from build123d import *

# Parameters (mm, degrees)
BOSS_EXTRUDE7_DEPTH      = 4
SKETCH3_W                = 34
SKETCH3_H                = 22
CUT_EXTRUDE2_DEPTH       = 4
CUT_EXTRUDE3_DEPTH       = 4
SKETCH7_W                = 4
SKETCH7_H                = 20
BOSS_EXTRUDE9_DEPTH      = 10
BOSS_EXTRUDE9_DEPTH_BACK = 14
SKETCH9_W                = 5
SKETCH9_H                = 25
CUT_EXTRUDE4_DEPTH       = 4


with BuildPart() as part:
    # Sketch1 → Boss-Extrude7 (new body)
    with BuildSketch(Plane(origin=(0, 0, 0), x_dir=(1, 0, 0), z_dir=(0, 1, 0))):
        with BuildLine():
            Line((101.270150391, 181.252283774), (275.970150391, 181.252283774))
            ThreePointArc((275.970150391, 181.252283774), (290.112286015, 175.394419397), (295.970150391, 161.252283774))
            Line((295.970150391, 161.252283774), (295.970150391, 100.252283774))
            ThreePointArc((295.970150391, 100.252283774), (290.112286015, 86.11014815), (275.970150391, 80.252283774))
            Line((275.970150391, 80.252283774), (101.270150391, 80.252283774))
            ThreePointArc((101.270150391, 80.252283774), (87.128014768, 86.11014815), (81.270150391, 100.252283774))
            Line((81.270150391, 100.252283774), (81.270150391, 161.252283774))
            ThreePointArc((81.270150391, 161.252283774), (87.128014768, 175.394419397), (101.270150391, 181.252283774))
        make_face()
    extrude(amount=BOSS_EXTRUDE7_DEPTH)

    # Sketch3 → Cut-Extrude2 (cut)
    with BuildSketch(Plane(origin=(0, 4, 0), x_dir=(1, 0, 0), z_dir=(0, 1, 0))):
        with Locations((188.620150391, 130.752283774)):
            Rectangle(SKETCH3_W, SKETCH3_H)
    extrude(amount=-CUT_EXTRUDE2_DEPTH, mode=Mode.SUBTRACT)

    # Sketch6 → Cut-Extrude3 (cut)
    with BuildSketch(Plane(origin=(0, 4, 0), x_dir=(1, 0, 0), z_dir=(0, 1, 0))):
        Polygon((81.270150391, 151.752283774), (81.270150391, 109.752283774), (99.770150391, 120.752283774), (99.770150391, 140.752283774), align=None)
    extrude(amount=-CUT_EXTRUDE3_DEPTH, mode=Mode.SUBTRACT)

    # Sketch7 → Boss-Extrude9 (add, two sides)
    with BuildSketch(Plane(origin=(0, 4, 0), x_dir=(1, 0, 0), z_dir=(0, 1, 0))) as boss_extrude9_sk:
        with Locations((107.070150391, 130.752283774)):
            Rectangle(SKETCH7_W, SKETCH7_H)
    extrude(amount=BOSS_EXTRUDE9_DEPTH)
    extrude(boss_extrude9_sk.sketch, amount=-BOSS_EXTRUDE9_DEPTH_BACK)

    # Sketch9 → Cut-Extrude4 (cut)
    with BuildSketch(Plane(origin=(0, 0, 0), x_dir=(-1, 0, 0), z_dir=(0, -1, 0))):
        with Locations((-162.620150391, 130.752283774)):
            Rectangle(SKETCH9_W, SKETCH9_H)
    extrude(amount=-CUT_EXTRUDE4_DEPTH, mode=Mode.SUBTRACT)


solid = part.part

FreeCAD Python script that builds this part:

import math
import FreeCAD as App
import Part
import Sketcher
from FreeCAD import Vector


def add_polygon(sketch, points):
    """Adds a closed chain of lines whose ends are joined by coincident constraints."""
    first, n = sketch.GeometryCount, len(points)
    for a, b in zip(points, points[1:] + points[:1]):
        sketch.addGeometry(Part.LineSegment(App.Vector(*a, 0), App.Vector(*b, 0)), False)
    for i in range(n):
        sketch.addConstraint(Sketcher.Constraint("Coincident", first + i, 2, first + (i + 1) % n, 1))

doc = App.newDocument("Part")
body = doc.addObject("PartDesign::Body", "Body")

# Sketch on XZ plane
sketch1 = doc.addObject("Sketcher::SketchObject", "Sketch")
body.addObject(sketch1)
sketch1.AttachmentSupport = (doc.XZ_Plane, [""])
sketch1.MapMode = "FlatFace"
sketch1.addGeometry([
    Part.LineSegment(Vector(275.97015, -181.252284, 0), Vector(101.27015, -181.252284, 0)),  # 0
    Part.ArcOfCircle(Part.Circle(Vector(101.27015, -161.252284, 0), Vector(0, 0, 1), 20), math.radians(-180), math.radians(-90)),  # 1
    Part.LineSegment(Vector(81.27015, -161.252284, 0), Vector(81.27015, -100.252284, 0)),  # 2
    Part.ArcOfCircle(Part.Circle(Vector(101.27015, -100.252284, 0), Vector(0, 0, 1), 20), math.radians(90), math.radians(180)),  # 3
    Part.LineSegment(Vector(101.27015, -80.252284, 0), Vector(275.97015, -80.252284, 0)),  # 4
    Part.ArcOfCircle(Part.Circle(Vector(275.97015, -100.252284, 0), Vector(0, 0, 1), 20), math.radians(0), math.radians(90)),  # 5
    Part.LineSegment(Vector(295.97015, -100.252284, 0), Vector(295.97015, -161.252284, 0)),  # 6
    Part.ArcOfCircle(Part.Circle(Vector(275.97015, -161.252284, 0), Vector(0, 0, 1), 20), math.radians(-90), math.radians(0)),  # 7
], False)
sketch1.addConstraint([
    Sketcher.Constraint("Tangent", 0, 2, 1, 2),
    Sketcher.Constraint("Tangent", 1, 1, 2, 1),
    Sketcher.Constraint("Tangent", 2, 2, 3, 2),
    Sketcher.Constraint("Tangent", 3, 1, 4, 1),
    Sketcher.Constraint("Tangent", 4, 2, 5, 2),
    Sketcher.Constraint("Tangent", 5, 1, 6, 1),
    Sketcher.Constraint("Tangent", 6, 2, 7, 2),
    Sketcher.Constraint("Tangent", 7, 1, 0, 1),
    Sketcher.Constraint("Horizontal", 0),
    Sketcher.Constraint("Vertical", 2),
    Sketcher.Constraint("Horizontal", 4),
    Sketcher.Constraint("Vertical", 6),
    Sketcher.Constraint("Equal", 1, 3),
    Sketcher.Constraint("Equal", 3, 5),
    Sketcher.Constraint("Equal", 5, 7),
    Sketcher.Constraint("Radius", 1, 20.0),
    Sketcher.Constraint("DistanceY", 2, 1, 2, 2, 61.0),
    Sketcher.Constraint("DistanceX", 0, 2, 0, 1, 174.7),
    Sketcher.Constraint("DistanceX", -1, 1, 1, 3, 101.27015),
    Sketcher.Constraint("DistanceY", 1, 3, -1, 1, 161.252284),
])
pad1 = doc.addObject("PartDesign::Pad", "Pad")
body.addObject(pad1)
pad1.Profile = sketch1
pad1.Length = 4
pad1.Reversed = True

# Sketch on XZ plane
sketch2 = doc.addObject("Sketcher::SketchObject", "Sketch001")
body.addObject(sketch2)
sketch2.AttachmentSupport = (doc.XZ_Plane, [""])
sketch2.MapMode = "FlatFace"
sketch2.AttachmentOffset = App.Placement(Vector(0, 0, -4), App.Rotation())
add_polygon(sketch2, [(171.62015, -141.752284), (171.62015, -119.752284), (205.62015, -119.752284), (205.62015, -141.752284)])  # lines 0-3
sketch2.addConstraint([
    Sketcher.Constraint("Vertical", 0),
    Sketcher.Constraint("Horizontal", 1),
    Sketcher.Constraint("Vertical", 2),
    Sketcher.Constraint("Horizontal", 3),
    Sketcher.Constraint("DistanceX", 1, 1, 1, 2, 34.0),
    Sketcher.Constraint("DistanceY", 0, 1, 0, 2, 22.0),
    Sketcher.Constraint("DistanceX", -1, 1, 0, 2, 171.62015),
    Sketcher.Constraint("DistanceY", 0, 2, -1, 1, 119.752284),
])
pocket1 = doc.addObject("PartDesign::Pocket", "Pocket")
body.addObject(pocket1)
pocket1.Profile = sketch2
pocket1.Length = 4
pocket1.Reversed = True

# Sketch on XZ plane
sketch3 = doc.addObject("Sketcher::SketchObject", "Sketch002")
body.addObject(sketch3)
sketch3.AttachmentSupport = (doc.XZ_Plane, [""])
sketch3.MapMode = "FlatFace"
sketch3.AttachmentOffset = App.Placement(Vector(0, 0, -4), App.Rotation())
add_polygon(sketch3, [(81.27015, -151.752284), (81.27015, -109.752284), (99.77015, -120.752284), (99.77015, -140.752284)])  # lines 0-3
sketch3.addConstraint([
    Sketcher.Constraint("Vertical", 0),
    Sketcher.Constraint("Vertical", 2),
    Sketcher.Constraint("Equal", 1, 3),
    Sketcher.Constraint("DistanceY", 0, 1, 0, 2, 42.0),
    Sketcher.Constraint("DistanceY", 2, 2, 2, 1, 20.0),
    Sketcher.Constraint("DistanceX", 0, 2, 1, 2, 18.5),
    Sketcher.Constraint("DistanceX", -1, 1, 0, 2, 81.27015),
    Sketcher.Constraint("DistanceY", 0, 2, -1, 1, 109.752284),
])
pocket2 = doc.addObject("PartDesign::Pocket", "Pocket001")
body.addObject(pocket2)
pocket2.Profile = sketch3
pocket2.Length = 4
pocket2.Reversed = True

# Sketch on XZ plane
sketch4 = doc.addObject("Sketcher::SketchObject", "Sketch003")
body.addObject(sketch4)
sketch4.AttachmentSupport = (doc.XZ_Plane, [""])
sketch4.MapMode = "FlatFace"
sketch4.AttachmentOffset = App.Placement(Vector(0, 0, -4), App.Rotation())
add_polygon(sketch4, [(105.07015, -140.752284), (105.07015, -120.752284), (109.07015, -120.752284), (109.07015, -140.752284)])  # lines 0-3
sketch4.addConstraint([
    Sketcher.Constraint("Vertical", 0),
    Sketcher.Constraint("Horizontal", 1),
    Sketcher.Constraint("Vertical", 2),
    Sketcher.Constraint("Horizontal", 3),
    Sketcher.Constraint("DistanceX", 1, 1, 1, 2, 4.0),
    Sketcher.Constraint("DistanceY", 0, 1, 0, 2, 20.0),
    Sketcher.Constraint("DistanceX", -1, 1, 0, 2, 105.07015),
    Sketcher.Constraint("DistanceY", 0, 2, -1, 1, 120.752284),
])
pad2 = doc.addObject("PartDesign::Pad", "Pad001")
body.addObject(pad2)
pad2.Profile = sketch4
pad2.Type = "TwoLengths"
pad2.Length = 10
pad2.Length2 = 14
pad2.Reversed = True

# Sketch on XZ plane
sketch5 = doc.addObject("Sketcher::SketchObject", "Sketch004")
body.addObject(sketch5)
sketch5.AttachmentSupport = (doc.XZ_Plane, [""])
sketch5.MapMode = "FlatFace"
add_polygon(sketch5, [(165.12015, -143.252284), (165.12015, -118.252284), (160.12015, -118.252284), (160.12015, -143.252284)])  # lines 0-3
sketch5.addConstraint([
    Sketcher.Constraint("Vertical", 0),
    Sketcher.Constraint("Horizontal", 1),
    Sketcher.Constraint("Vertical", 2),
    Sketcher.Constraint("Horizontal", 3),
    Sketcher.Constraint("DistanceX", 1, 2, 1, 1, 5.0),
    Sketcher.Constraint("DistanceY", 0, 1, 0, 2, 25.0),
    Sketcher.Constraint("DistanceX", -1, 1, 0, 2, 165.12015),
    Sketcher.Constraint("DistanceY", 0, 2, -1, 1, 118.252284),
])
pocket3 = doc.addObject("PartDesign::Pocket", "Pocket002")
body.addObject(pocket3)
pocket3.Profile = sketch5
pocket3.Length = 4

doc.recompute()
